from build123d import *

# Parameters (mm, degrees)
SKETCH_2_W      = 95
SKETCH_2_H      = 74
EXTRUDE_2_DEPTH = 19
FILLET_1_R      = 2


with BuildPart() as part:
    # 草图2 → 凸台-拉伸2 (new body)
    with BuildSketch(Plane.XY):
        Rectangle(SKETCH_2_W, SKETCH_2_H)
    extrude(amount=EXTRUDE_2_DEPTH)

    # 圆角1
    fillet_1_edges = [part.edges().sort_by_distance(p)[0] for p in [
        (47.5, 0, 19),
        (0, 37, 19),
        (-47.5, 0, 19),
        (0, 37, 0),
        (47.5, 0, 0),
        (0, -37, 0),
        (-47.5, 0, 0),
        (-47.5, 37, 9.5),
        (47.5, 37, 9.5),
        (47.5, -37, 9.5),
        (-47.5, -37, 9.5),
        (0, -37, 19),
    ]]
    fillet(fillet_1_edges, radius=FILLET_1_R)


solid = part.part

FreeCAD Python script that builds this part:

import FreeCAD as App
import Part
import Sketcher
from FreeCAD import Vector

doc = App.newDocument("Part")
body = doc.addObject("PartDesign::Body", "Body")

sketch1 = body.newObject("Sketcher::SketchObject", "Sketch")
sketch1.AttachmentSupport = (doc.getObject("XY_Plane"), [""])
sketch1.MapMode = "FlatFace"
sketch1.addGeometry([
    Part.LineSegment(Vector(-47.5, 37, 0), Vector(-47.5, -37, 0)),
    Part.LineSegment(Vector(-47.5, -37, 0), Vector(47.5, -37, 0)),
    Part.LineSegment(Vector(47.5, -37, 0), Vector(47.5, 37, 0)),
    Part.LineSegment(Vector(47.5, 37, 0), Vector(-47.5, 37, 0)),
], False)
sketch1.addConstraint([
    Sketcher.Constraint("Coincident", 0, 2, 1, 1),
    Sketcher.Constraint("Coincident", 1, 2, 2, 1),
    Sketcher.Constraint("Coincident", 2, 2, 3, 1),
    Sketcher.Constraint("Coincident", 3, 2, 0, 1),
    Sketcher.Constraint("Vertical", 0),
    Sketcher.Constraint("Horizontal", 1),
    Sketcher.Constraint("Vertical", 2),
    Sketcher.Constraint("Horizontal", 3),
    Sketcher.Constraint("Symmetric", 0, 2, 2, 2, -1, 1),
    Sketcher.Constraint("DistanceX", 1, 1, 1, 2, 95.0),
    Sketcher.Constraint("DistanceY", 0, 2, 0, 1, 74.0),
])
pad1 = body.newObject("PartDesign::Pad", "Pad")
pad1.Profile = sketch1
pad1.Length = 19
doc.recompute()

fillet = body.newObject("PartDesign::Fillet", "Fillet")
fillet.Base = (pad1, ["Edge1"])
fillet.UseAllEdges = True
fillet.Radius = 2

doc.recompute()
